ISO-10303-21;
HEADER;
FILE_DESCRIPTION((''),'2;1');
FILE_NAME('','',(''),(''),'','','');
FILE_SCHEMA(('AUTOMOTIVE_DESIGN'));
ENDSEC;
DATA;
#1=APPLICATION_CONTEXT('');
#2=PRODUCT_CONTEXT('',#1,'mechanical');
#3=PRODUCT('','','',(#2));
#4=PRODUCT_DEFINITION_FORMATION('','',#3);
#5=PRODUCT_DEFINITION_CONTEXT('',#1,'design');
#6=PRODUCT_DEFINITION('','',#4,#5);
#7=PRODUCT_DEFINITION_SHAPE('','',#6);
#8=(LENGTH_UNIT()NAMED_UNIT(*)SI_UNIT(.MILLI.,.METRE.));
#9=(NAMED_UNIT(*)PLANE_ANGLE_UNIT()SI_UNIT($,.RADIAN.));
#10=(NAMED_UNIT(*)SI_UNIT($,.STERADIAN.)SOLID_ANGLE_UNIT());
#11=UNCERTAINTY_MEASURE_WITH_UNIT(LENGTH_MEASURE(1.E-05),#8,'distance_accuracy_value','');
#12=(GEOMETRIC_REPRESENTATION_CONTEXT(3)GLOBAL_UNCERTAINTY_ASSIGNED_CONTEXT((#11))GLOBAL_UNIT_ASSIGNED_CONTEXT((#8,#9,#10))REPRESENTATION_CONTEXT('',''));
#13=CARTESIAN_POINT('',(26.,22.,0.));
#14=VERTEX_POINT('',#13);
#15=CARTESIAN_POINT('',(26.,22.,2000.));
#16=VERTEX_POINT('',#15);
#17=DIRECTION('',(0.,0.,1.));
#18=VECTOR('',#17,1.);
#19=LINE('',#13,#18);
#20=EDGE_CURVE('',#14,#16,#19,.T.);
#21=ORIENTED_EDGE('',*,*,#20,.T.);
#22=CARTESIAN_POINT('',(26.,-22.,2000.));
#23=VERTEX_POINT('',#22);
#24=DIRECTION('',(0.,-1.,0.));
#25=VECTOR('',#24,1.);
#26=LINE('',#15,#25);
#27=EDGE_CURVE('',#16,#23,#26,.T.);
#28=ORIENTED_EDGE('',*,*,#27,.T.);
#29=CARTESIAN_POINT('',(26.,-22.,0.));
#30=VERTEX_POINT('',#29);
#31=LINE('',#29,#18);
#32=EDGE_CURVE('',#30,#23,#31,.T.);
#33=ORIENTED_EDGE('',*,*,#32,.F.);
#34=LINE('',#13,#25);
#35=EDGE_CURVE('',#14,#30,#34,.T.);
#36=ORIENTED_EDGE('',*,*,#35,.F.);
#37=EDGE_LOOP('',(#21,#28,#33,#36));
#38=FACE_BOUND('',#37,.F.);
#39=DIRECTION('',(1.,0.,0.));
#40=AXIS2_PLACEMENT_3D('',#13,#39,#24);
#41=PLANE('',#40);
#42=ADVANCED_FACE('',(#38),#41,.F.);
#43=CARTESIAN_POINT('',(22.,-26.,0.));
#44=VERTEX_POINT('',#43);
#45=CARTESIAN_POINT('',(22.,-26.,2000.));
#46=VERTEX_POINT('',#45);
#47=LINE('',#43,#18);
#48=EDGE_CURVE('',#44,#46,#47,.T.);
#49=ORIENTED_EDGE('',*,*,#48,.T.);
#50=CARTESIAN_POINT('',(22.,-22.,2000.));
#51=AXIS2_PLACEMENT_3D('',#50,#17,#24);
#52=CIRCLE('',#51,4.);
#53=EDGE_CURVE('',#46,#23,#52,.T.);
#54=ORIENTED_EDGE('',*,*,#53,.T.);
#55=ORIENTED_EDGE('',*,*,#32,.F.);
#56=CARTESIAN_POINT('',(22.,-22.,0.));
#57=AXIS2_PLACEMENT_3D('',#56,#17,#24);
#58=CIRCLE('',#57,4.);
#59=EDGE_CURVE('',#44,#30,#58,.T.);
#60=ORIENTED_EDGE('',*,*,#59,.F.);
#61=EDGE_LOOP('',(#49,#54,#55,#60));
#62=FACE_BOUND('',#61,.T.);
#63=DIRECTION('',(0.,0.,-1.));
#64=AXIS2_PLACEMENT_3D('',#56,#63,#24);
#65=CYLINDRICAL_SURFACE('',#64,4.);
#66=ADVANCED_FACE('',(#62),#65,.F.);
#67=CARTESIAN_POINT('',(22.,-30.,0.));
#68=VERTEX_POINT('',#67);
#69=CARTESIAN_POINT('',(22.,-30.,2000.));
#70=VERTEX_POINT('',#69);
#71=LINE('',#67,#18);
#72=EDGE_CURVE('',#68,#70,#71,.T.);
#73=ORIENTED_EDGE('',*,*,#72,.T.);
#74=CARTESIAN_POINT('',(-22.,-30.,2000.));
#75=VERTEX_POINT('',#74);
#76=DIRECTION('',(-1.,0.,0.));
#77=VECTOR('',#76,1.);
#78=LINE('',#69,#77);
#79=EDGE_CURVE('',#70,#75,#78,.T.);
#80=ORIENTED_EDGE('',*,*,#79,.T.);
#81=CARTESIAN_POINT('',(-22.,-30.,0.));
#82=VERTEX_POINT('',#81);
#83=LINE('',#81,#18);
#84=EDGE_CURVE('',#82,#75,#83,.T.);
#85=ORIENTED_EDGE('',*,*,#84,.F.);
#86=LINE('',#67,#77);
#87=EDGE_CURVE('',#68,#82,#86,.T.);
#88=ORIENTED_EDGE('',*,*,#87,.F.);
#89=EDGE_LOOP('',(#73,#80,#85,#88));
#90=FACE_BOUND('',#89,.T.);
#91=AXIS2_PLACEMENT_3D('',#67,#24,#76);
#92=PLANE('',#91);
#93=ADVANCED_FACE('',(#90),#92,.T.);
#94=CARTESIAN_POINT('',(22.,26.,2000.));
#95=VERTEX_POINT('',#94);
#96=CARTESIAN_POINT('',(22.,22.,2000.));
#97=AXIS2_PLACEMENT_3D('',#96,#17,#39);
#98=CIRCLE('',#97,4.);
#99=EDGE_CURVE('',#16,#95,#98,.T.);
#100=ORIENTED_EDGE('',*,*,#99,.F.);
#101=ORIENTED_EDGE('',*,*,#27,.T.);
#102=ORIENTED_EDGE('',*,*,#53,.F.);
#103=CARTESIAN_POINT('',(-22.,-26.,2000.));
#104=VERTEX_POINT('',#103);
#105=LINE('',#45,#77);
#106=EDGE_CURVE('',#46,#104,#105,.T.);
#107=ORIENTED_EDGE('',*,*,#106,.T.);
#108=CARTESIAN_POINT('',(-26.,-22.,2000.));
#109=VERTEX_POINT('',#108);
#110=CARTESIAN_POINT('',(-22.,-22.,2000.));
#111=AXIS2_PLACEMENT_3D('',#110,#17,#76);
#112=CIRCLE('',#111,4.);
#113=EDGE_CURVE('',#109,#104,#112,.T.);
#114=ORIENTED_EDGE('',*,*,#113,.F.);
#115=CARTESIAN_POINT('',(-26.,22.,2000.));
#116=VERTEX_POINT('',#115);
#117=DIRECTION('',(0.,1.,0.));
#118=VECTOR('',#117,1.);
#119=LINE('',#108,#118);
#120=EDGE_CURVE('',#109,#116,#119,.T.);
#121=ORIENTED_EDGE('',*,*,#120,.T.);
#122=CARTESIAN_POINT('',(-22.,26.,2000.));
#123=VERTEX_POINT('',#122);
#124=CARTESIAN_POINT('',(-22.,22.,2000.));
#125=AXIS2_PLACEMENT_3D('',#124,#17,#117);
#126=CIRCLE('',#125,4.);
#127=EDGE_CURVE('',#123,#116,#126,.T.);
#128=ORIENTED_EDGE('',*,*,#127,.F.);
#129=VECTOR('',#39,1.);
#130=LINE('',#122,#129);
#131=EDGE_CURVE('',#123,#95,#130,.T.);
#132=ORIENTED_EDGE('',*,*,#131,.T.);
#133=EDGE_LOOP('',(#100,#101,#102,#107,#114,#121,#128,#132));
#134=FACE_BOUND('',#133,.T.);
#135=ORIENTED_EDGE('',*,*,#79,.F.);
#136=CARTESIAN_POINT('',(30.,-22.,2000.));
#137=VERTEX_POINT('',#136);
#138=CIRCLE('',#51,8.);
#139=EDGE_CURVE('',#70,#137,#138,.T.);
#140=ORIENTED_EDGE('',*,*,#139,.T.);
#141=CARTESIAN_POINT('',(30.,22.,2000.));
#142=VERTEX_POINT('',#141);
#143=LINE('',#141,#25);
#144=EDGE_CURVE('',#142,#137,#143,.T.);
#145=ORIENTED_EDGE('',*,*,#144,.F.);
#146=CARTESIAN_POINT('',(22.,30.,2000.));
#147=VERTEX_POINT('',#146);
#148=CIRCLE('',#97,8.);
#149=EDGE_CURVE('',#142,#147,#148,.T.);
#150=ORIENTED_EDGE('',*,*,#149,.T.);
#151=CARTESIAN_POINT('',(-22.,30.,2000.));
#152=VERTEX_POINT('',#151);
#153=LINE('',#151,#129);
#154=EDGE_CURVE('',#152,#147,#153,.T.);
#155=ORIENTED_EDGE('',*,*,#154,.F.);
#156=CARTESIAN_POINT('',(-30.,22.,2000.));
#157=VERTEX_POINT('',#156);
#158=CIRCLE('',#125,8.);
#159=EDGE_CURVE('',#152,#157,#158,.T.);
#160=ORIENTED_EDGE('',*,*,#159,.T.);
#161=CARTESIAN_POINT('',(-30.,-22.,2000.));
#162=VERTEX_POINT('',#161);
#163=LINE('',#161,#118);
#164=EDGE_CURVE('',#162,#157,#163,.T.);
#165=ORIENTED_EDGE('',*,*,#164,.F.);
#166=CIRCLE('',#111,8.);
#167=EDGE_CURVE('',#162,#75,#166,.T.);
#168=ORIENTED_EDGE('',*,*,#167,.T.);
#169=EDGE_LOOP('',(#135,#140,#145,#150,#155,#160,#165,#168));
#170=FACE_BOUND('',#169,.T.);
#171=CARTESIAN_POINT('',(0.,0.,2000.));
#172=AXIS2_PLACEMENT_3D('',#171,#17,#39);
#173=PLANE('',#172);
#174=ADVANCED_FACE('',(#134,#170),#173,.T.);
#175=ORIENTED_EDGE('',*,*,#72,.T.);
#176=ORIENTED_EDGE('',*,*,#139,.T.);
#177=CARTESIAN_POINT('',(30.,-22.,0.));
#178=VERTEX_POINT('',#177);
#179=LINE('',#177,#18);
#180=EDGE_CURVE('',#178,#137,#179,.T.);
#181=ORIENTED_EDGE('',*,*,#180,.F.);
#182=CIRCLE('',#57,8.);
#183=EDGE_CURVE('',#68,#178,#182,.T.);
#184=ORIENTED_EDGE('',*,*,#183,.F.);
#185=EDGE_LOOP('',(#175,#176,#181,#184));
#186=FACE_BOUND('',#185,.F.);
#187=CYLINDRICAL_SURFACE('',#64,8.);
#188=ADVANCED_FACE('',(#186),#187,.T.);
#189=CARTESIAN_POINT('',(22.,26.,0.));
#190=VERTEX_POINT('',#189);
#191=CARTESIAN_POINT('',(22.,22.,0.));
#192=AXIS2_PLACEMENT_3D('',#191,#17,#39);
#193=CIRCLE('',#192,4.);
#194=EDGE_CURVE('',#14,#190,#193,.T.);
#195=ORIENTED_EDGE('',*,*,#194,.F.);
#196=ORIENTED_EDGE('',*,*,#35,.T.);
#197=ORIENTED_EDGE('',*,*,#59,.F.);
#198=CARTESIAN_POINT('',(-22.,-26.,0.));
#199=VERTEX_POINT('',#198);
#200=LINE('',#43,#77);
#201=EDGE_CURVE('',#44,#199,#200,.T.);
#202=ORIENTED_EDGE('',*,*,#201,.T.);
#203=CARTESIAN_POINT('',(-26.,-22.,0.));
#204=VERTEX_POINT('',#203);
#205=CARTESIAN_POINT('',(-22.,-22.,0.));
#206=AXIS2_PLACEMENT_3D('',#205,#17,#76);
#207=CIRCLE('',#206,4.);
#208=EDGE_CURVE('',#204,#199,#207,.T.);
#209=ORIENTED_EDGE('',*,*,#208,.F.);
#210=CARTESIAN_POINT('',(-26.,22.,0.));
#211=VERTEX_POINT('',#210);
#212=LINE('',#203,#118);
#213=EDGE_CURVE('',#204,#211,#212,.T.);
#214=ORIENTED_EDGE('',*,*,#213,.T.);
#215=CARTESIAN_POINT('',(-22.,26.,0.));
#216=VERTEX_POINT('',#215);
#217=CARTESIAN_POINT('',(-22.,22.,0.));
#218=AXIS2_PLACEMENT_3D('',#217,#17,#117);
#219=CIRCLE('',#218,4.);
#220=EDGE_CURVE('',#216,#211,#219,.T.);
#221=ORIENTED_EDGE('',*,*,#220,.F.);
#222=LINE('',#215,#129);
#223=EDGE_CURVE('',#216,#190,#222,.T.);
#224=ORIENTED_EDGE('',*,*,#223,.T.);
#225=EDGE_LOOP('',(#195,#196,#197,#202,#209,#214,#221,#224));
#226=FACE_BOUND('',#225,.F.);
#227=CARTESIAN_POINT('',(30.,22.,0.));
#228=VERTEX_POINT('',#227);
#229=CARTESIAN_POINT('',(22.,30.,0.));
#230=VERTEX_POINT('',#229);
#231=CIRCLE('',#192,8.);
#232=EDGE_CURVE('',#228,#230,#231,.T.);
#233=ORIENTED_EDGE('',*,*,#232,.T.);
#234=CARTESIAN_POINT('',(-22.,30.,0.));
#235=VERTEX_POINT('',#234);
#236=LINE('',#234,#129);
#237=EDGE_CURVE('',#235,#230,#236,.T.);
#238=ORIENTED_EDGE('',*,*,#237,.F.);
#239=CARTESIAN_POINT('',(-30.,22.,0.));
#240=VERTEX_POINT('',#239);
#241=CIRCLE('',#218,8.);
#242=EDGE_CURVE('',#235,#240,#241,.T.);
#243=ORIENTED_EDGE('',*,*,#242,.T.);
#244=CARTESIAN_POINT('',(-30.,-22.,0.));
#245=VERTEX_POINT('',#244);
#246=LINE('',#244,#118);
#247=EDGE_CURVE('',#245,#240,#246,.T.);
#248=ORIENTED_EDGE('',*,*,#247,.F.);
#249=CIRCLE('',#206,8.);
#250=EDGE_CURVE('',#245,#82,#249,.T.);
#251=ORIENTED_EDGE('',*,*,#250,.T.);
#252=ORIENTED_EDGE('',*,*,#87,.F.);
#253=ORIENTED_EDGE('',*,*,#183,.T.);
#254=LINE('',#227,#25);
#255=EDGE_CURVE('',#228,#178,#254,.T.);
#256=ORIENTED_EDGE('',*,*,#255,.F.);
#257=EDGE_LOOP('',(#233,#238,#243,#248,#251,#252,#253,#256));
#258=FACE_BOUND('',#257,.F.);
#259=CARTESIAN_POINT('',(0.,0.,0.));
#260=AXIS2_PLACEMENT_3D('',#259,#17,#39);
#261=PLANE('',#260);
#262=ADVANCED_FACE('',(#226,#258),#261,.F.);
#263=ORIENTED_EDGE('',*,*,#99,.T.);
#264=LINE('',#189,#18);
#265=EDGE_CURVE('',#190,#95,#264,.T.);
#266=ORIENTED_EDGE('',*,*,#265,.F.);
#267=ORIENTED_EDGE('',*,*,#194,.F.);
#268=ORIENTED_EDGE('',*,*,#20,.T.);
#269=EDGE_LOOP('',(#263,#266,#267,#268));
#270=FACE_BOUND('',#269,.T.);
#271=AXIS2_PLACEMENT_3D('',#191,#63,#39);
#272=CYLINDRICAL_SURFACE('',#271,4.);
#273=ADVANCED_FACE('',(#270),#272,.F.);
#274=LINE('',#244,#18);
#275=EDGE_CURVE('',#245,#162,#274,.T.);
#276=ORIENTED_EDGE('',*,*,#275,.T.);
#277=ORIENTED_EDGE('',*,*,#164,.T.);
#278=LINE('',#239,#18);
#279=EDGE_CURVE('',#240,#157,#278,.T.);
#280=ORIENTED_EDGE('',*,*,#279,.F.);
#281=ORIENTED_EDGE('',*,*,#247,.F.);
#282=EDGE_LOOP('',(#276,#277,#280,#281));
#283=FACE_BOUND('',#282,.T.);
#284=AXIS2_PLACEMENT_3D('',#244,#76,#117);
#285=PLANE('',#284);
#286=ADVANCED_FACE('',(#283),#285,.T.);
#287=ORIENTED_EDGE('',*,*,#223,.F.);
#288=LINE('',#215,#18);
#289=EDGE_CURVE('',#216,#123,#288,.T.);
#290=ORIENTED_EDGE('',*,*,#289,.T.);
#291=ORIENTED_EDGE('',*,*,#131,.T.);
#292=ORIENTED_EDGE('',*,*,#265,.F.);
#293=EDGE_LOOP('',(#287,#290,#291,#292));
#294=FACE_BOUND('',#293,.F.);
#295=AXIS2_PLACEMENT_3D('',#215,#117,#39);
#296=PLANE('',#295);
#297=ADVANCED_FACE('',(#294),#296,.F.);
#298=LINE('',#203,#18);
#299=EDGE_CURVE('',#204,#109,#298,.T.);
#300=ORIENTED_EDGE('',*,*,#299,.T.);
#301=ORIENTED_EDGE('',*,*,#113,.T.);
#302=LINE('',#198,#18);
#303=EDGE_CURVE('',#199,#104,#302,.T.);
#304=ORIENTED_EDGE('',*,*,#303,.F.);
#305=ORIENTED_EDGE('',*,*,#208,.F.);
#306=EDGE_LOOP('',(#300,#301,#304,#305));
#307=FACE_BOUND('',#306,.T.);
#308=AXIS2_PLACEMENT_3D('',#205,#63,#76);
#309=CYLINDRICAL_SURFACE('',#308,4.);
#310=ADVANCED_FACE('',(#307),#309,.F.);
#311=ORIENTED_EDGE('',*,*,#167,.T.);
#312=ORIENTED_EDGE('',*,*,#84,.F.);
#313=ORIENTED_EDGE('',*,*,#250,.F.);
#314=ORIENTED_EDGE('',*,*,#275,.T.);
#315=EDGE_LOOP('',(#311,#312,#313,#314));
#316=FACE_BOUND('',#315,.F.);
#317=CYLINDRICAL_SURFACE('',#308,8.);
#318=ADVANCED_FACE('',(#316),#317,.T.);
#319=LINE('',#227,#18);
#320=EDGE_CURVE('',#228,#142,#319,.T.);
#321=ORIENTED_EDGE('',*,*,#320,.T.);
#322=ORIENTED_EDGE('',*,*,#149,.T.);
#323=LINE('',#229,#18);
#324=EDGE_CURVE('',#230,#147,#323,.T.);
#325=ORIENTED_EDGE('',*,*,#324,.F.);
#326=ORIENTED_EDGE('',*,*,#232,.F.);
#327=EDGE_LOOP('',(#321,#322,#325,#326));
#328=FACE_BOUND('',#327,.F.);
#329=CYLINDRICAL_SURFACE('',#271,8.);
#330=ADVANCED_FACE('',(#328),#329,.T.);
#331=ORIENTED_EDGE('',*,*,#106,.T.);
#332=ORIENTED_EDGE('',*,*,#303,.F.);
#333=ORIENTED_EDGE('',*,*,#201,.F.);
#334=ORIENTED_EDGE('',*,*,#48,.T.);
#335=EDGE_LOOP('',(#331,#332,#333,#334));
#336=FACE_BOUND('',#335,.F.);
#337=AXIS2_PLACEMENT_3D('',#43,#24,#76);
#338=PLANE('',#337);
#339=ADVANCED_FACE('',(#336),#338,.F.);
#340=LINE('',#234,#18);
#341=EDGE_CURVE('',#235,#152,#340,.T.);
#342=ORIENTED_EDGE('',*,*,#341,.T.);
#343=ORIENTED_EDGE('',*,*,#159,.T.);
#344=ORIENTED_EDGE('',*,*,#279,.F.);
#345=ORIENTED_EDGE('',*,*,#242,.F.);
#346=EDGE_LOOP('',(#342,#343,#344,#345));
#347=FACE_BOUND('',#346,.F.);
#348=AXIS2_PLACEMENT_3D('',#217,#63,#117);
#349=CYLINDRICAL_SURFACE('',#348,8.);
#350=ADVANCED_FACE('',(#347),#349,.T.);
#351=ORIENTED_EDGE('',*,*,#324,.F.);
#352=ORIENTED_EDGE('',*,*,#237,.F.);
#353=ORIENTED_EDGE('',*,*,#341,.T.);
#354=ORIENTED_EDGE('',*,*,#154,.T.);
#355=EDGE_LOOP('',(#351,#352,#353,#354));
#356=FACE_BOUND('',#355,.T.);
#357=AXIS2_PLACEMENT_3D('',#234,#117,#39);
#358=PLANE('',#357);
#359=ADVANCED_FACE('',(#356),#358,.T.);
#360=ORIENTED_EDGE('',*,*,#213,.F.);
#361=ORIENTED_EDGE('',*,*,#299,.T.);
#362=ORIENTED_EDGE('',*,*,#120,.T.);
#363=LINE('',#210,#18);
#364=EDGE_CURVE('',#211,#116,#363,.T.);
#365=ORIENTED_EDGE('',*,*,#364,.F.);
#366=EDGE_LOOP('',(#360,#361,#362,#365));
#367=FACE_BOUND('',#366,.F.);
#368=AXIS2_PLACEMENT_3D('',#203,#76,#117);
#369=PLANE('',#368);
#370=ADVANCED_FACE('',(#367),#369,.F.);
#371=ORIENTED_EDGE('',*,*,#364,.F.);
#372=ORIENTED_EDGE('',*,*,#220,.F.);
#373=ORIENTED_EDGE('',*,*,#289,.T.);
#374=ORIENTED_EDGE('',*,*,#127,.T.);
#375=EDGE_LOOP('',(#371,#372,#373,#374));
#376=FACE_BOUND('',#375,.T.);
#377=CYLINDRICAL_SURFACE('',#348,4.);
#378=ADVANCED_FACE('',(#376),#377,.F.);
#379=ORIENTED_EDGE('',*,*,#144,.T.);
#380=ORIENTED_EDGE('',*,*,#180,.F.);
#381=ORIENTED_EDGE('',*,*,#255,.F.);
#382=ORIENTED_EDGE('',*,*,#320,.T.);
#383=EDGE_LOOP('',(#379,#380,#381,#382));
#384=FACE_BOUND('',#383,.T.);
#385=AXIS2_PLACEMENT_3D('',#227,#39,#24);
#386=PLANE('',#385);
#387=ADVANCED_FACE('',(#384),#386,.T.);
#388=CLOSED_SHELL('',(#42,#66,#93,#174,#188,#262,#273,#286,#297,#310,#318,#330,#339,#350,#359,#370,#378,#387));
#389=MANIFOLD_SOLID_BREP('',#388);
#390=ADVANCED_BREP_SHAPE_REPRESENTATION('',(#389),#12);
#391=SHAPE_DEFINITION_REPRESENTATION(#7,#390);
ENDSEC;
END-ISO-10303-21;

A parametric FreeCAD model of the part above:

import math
import FreeCAD as App
import Part
import Sketcher

doc = App.newDocument("Part")
body = doc.addObject("PartDesign::Body", "Body")

sketch1 = body.newObject("Sketcher::SketchObject", "Sketch")
sketch1.AttachmentSupport = (doc.getObject("XY_Plane"), [""])
sketch1.MapMode = "FlatFace"
sketch1.addGeometry(Part.LineSegment(App.Vector(-30, 22, 0), App.Vector(-30, -22, 0)), False)
sketch1.addGeometry(Part.ArcOfCircle(Part.Circle(App.Vector(-22, -22, 0), App.Vector(0, 0, 1), 8), math.radians(180), math.radians(270)), False)
sketch1.addGeometry(Part.LineSegment(App.Vector(-22, -30, 0), App.Vector(22, -30, 0)), False)
sketch1.addGeometry(Part.ArcOfCircle(Part.Circle(App.Vector(22, -22, 0), App.Vector(0, 0, 1), 8), math.radians(-90), math.radians(0)), False)
sketch1.addGeometry(Part.LineSegment(App.Vector(30, -22, 0), App.Vector(30, 22, 0)), False)
sketch1.addGeometry(Part.ArcOfCircle(Part.Circle(App.Vector(22, 22, 0), App.Vector(0, 0, 1), 8), math.radians(0), math.radians(90)), False)
sketch1.addGeometry(Part.LineSegment(App.Vector(22, 30, 0), App.Vector(-22, 30, 0)), False)
sketch1.addGeometry(Part.ArcOfCircle(Part.Circle(App.Vector(-22, 22, 0), App.Vector(0, 0, 1), 8), math.radians(90), math.radians(180)), False)
sketch1.addGeometry(Part.ArcOfCircle(Part.Circle(App.Vector(-22, 22, 0), App.Vector(0, 0, 1), 4), math.radians(90), math.radians(180)), False)
sketch1.addGeometry(Part.LineSegment(App.Vector(-22, 26, 0), App.Vector(22, 26, 0)), False)
sketch1.addGeometry(Part.ArcOfCircle(Part.Circle(App.Vector(22, 22, 0), App.Vector(0, 0, 1), 4), math.radians(0), math.radians(90)), False)
sketch1.addGeometry(Part.LineSegment(App.Vector(26, 22, 0), App.Vector(26, -22, 0)), False)
sketch1.addGeometry(Part.ArcOfCircle(Part.Circle(App.Vector(22, -22, 0), App.Vector(0, 0, 1), 4), math.radians(-90), math.radians(0)), False)
sketch1.addGeometry(Part.LineSegment(App.Vector(22, -26, 0), App.Vector(-22, -26, 0)), False)
sketch1.addGeometry(Part.ArcOfCircle(Part.Circle(App.Vector(-22, -22, 0), App.Vector(0, 0, 1), 4), math.radians(180), math.radians(270)), False)
sketch1.addGeometry(Part.LineSegment(App.Vector(-26, -22, 0), App.Vector(-26, 22, 0)), False)
sketch1.addConstraint(Sketcher.Constraint("Tangent", 0, 2, 1, 1))
sketch1.addConstraint(Sketcher.Constraint("Tangent", 1, 2, 2, 1))
sketch1.addConstraint(Sketcher.Constraint("Tangent", 2, 2, 3, 1))
sketch1.addConstraint(Sketcher.Constraint("Tangent", 3, 2, 4, 1))
sketch1.addConstraint(Sketcher.Constraint("Tangent", 4, 2, 5, 1))
sketch1.addConstraint(Sketcher.Constraint("Tangent", 5, 2, 6, 1))
sketch1.addConstraint(Sketcher.Constraint("Tangent", 6, 2, 7, 1))
sketch1.addConstraint(Sketcher.Constraint("Tangent", 7, 2, 0, 1))
sketch1.addConstraint(Sketcher.Constraint("Tangent", 8, 1, 9, 1))
sketch1.addConstraint(Sketcher.Constraint("Tangent", 9, 2, 10, 2))
sketch1.addConstraint(Sketcher.Constraint("Tangent", 10, 1, 11, 1))
sketch1.addConstraint(Sketcher.Constraint("Tangent", 11, 2, 12, 2))
sketch1.addConstraint(Sketcher.Constraint("Tangent", 12, 1, 13, 1))
sketch1.addConstraint(Sketcher.Constraint("Tangent", 13, 2, 14, 2))
sketch1.addConstraint(Sketcher.Constraint("Tangent", 14, 1, 15, 1))
sketch1.addConstraint(Sketcher.Constraint("Tangent", 15, 2, 8, 2))
sketch1.addConstraint(Sketcher.Constraint("Vertical", 0))
sketch1.addConstraint(Sketcher.Constraint("Horizontal", 2))
sketch1.addConstraint(Sketcher.Constraint("Vertical", 4))
sketch1.addConstraint(Sketcher.Constraint("Horizontal", 6))
sketch1.addConstraint(Sketcher.Constraint("Horizontal", 9))
sketch1.addConstraint(Sketcher.Constraint("Vertical", 11))
sketch1.addConstraint(Sketcher.Constraint("Horizontal", 13))
sketch1.addConstraint(Sketcher.Constraint("Vertical", 15))
sketch1.addConstraint(Sketcher.Constraint("Coincident", 8, 3, 7, 3))
sketch1.addConstraint(Sketcher.Constraint("Coincident", 10, 3, 5, 3))
sketch1.addConstraint(Sketcher.Constraint("Coincident", 12, 3, 3, 3))
sketch1.addConstraint(Sketcher.Constraint("Equal", 1, 3))
sketch1.addConstraint(Sketcher.Constraint("Equal", 3, 5))
sketch1.addConstraint(Sketcher.Constraint("Equal", 5, 7))
sketch1.addConstraint(Sketcher.Constraint("Equal", 12, 14))
sketch1.addConstraint(Sketcher.Constraint("Symmetric", 1, 3, 5, 3, -1, 1))
sketch1.addConstraint(Sketcher.Constraint("Equal", 13, 0))
sketch1.addConstraint(Sketcher.Constraint("Radius", 1, 8.0))
sketch1.addConstraint(Sketcher.Constraint("Radius", 8, 4.0))
sketch1.addConstraint(Sketcher.Constraint("DistanceX", 0, 2, -1, 1, 30.0))
pad1 = body.newObject("PartDesign::Pad", "Pad")
pad1.Profile = sketch1
pad1.Length = 2000

doc.recompute()
